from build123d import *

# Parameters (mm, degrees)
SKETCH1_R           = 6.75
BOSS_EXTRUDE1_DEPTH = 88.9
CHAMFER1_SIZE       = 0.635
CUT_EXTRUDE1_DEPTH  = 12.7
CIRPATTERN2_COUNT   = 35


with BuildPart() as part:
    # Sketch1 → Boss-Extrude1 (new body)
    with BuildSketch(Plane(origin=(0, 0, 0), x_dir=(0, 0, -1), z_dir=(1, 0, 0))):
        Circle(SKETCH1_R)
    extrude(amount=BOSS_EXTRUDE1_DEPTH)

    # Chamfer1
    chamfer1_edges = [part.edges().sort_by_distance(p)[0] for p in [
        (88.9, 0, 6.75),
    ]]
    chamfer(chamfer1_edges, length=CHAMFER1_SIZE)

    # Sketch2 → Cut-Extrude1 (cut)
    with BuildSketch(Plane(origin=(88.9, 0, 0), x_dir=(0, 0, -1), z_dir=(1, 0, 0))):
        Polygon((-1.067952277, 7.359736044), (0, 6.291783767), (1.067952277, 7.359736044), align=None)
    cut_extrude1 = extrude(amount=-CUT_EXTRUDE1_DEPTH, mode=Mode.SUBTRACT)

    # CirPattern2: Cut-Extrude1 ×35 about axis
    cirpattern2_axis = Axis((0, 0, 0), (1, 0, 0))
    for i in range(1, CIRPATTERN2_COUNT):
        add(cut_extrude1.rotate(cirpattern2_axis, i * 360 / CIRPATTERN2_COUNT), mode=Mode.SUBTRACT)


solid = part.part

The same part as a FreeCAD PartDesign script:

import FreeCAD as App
import Part
import Sketcher
from FreeCAD import Vector
Q = App.Units.Quantity


def edges_at(feature, points):
    """Names of the edges that pass closest to the given points."""
    edges = feature.Shape.Edges
    near = lambda p: min(range(len(edges)), key=lambda i: edges[i].distToShape(Part.Vertex(*p))[0])
    return sorted({f"Edge{near(p) + 1}" for p in points})


def add_polygon(sketch, points):
    """Adds a closed chain of lines whose ends are joined by coincident constraints."""
    first, n = sketch.GeometryCount, len(points)
    for a, b in zip(points, points[1:] + points[:1]):
        sketch.addGeometry(Part.LineSegment(App.Vector(*a, 0), App.Vector(*b, 0)), False)
    for i in range(n):
        sketch.addConstraint(Sketcher.Constraint("Coincident", first + i, 2, first + (i + 1) % n, 1))

doc = App.newDocument("Part")
body = doc.addObject("PartDesign::Body", "Body")

sketch1 = doc.addObject("Sketcher::SketchObject", "Sketch")
body.addObject(sketch1)
sketch1.AttachmentSupport = (doc.YZ_Plane, [""])
sketch1.MapMode = "FlatFace"
sketch1.addGeometry(Part.Circle(Vector(0, 0, 0), Vector(0, 0, 1), 7), False)
sketch1.addConstraint(Sketcher.Constraint("Coincident", 0, 3, -1, 1))
sketch1.addConstraint(Sketcher.Constraint("Diameter", 0, 13.5))
pad1 = doc.addObject("PartDesign::Pad", "Pad")
body.addObject(pad1)
pad1.Profile = sketch1
pad1.Length = Q("3.5 in")
doc.recompute()

chamfer = doc.addObject("PartDesign::Chamfer", "Chamfer")
body.addObject(chamfer)
chamfer.Base = (pad1, edges_at(pad1, [(88.9, 0, 6.75)]))
chamfer.Size = Q("0.025 in")

sketch2 = doc.addObject("Sketcher::SketchObject", "Sketch001")
body.addObject(sketch2)
sketch2.AttachmentSupport = (doc.YZ_Plane, [""])
sketch2.MapMode = "FlatFace"
sketch2.AttachmentOffset = App.Placement(Vector(0, 0, 3.5 * 25.4), App.Rotation())
add_polygon(sketch2, [(7.4, 1.1), (6.3, 0), (7.4, -1.1)])
sketch2.addConstraint(Sketcher.Constraint("Vertical", 2))
sketch2.addConstraint(Sketcher.Constraint("PointOnObject", 0, 2, -1))
sketch2.addConstraint(Sketcher.Constraint("Perpendicular", 0, 1))
sketch2.addConstraint(Sketcher.Constraint("Equal", 0, 1))
sketch2.addConstraint(Sketcher.Constraint("DistanceY", 2, 1, 2, 2, 2.135905))
sketch2.addConstraint(Sketcher.Constraint("DistanceX", -1, 1, 0, 2, 6.291784))
pocket1 = doc.addObject("PartDesign::Pocket", "Pocket")
body.addObject(pocket1)
pocket1.Profile = sketch2
pocket1.Length = Q("0.5 in")
doc.recompute()

polarpattern = doc.addObject("PartDesign::PolarPattern", "PolarPattern")
body.addObject(polarpattern)
polarpattern.Originals = [pocket1]
polarpattern.Axis = (doc.X_Axis, [""])
polarpattern.Angle = 360
polarpattern.Occurrences = 35
body.Tip = polarpattern

doc.recompute()
